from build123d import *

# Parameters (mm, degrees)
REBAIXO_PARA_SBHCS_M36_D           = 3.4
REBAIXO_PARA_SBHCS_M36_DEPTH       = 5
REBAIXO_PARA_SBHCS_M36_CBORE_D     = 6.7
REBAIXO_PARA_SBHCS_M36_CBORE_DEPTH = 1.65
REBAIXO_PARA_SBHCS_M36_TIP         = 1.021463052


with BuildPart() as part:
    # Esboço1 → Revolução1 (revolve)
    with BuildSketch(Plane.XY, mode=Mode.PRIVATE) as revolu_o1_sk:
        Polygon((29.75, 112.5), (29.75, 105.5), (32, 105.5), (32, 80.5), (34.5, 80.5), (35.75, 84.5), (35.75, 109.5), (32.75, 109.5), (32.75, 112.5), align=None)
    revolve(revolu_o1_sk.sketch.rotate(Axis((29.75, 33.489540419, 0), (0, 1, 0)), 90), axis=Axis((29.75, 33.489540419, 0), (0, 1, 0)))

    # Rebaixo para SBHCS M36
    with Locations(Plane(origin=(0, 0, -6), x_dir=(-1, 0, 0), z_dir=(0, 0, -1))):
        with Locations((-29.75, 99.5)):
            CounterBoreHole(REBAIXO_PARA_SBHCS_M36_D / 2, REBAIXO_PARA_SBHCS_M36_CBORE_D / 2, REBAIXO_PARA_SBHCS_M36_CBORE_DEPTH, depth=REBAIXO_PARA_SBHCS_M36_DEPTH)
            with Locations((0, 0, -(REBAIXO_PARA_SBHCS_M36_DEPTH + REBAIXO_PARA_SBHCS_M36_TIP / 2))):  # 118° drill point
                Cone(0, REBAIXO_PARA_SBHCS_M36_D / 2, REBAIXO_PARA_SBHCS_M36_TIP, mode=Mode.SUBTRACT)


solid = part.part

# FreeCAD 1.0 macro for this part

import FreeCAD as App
import Part
import Sketcher

V = App.Vector
Q = App.Units.Quantity

doc = App.newDocument("Part")
body = doc.addObject("PartDesign::Body", "Body")

# Sketch on XY plane
sketch1 = doc.addObject("Sketcher::SketchObject", "Sketch")
body.addObject(sketch1)
sketch1.AttachmentSupport = (doc.XY_Plane, [""])
sketch1.MapMode = "FlatFace"
sketch1.addGeometry([
    Part.LineSegment(V(29.8, 112.5, 0), V(29.8, 105.5, 0)),  # 0
    Part.LineSegment(V(29.8, 105.5, 0), V(32, 105.5, 0)),  # 1
    Part.LineSegment(V(32, 105.5, 0), V(32, 80.5, 0)),  # 2
    Part.LineSegment(V(32, 80.5, 0), V(34.5, 80.5, 0)),  # 3
    Part.LineSegment(V(34.5, 80.5, 0), V(35.8, 84.5, 0)),  # 4
    Part.LineSegment(V(35.8, 84.5, 0), V(35.8, 109.5, 0)),  # 5
    Part.LineSegment(V(35.8, 109.5, 0), V(32.8, 109.5, 0)),  # 6
    Part.LineSegment(V(32.8, 109.5, 0), V(32.8, 112.5, 0)),  # 7
    Part.LineSegment(V(32.8, 112.5, 0), V(29.8, 112.5, 0)),  # 8
], False)
sketch1.addGeometry(Part.LineSegment(V(29.8, 80.5, 0), V(29.8, 112.5, 0)), True)  # axis
sketch1.addConstraint([
    Sketcher.Constraint("Coincident", 0, 2, 1, 1),
    Sketcher.Constraint("Coincident", 1, 2, 2, 1),
    Sketcher.Constraint("Coincident", 2, 2, 3, 1),
    Sketcher.Constraint("Coincident", 3, 2, 4, 1),
    Sketcher.Constraint("Coincident", 4, 2, 5, 1),
    Sketcher.Constraint("Coincident", 5, 2, 6, 1),
    Sketcher.Constraint("Coincident", 6, 2, 7, 1),
    Sketcher.Constraint("Coincident", 7, 2, 8, 1),
    Sketcher.Constraint("Coincident", 8, 2, 0, 1),
    Sketcher.Constraint("Vertical", 0),
    Sketcher.Constraint("Horizontal", 1),
    Sketcher.Constraint("Vertical", 2),
    Sketcher.Constraint("Horizontal", 3),
    Sketcher.Constraint("Vertical", 5),
    Sketcher.Constraint("Horizontal", 6),
    Sketcher.Constraint("Vertical", 7),
    Sketcher.Constraint("Horizontal", 8),
    Sketcher.Constraint("Vertical", 9),
    Sketcher.Constraint("Coincident", 9, 2, 8, 2),
    Sketcher.Constraint("Horizontal", 3, 2, 9, 1),
    Sketcher.Constraint("Equal", 6, 8),
    Sketcher.Constraint("Equal", 2, 5),
    Sketcher.Constraint("Equal", 8, 7),
    Sketcher.Constraint("DistanceX", 6, 2, 6, 1, Q("3 mm")),
    Sketcher.Constraint("DistanceY", 0, 2, 0, 1, Q("7 mm")),
    Sketcher.Constraint("DistanceY", 2, 2, 2, 1, Q("25 mm")),
    Sketcher.Constraint("DistanceX", 3, 1, 3, 2, Q("2.5 mm")),
    Sketcher.Constraint("DistanceX", -1, 1, 1, 2, Q("32 mm")),
    Sketcher.Constraint("DistanceX", 1, 1, 1, 2, Q("2.25 mm")),
    Sketcher.Constraint("DistanceY", -1, 1, 0, 2, Q("105.5 mm")),
])
revolution = doc.addObject("PartDesign::Revolution", "Revolution")
body.addObject(revolution)
revolution.Profile = sketch1
revolution.ReferenceAxis = (sketch1, ["Axis0"])
revolution.Angle = 360

# Sketch on XY plane
sketch2 = doc.addObject("Sketcher::SketchObject", "Sketch001")
body.addObject(sketch2)
sketch2.AttachmentSupport = (doc.XY_Plane, [""])
sketch2.MapMode = "FlatFace"
sketch2.AttachmentOffset = App.Placement(V(0, 0, -6), App.Rotation())
sketch2.addGeometry(Part.Circle(V(29.8, 99.5, 0), V(0, 0, 1), 1.7), False)
sketch2.addConstraint([
    Sketcher.Constraint("Diameter", 0, Q("3.4 mm")),
    Sketcher.Constraint("DistanceY", -1, 1, 0, 3, Q("99.5 mm")),
    Sketcher.Constraint("DistanceX", -1, 1, 0, 3, Q("29.75 mm")),
])
doc.recompute()
hole = doc.addObject("PartDesign::Hole", "Hole")
body.addObject(hole)
hole.Profile = sketch2
hole.ThreadType = "None"
hole.Diameter = 3.4
hole.DepthType = "Dimension"
hole.Depth = 5
hole.DrillPoint = "Angled"
hole.DrillPointAngle = 118
hole.HoleCutType = "Counterbore"
hole.HoleCutDiameter = 6.7
hole.HoleCutDepth = 1.65
hole.Reversed = True

doc.recompute()
